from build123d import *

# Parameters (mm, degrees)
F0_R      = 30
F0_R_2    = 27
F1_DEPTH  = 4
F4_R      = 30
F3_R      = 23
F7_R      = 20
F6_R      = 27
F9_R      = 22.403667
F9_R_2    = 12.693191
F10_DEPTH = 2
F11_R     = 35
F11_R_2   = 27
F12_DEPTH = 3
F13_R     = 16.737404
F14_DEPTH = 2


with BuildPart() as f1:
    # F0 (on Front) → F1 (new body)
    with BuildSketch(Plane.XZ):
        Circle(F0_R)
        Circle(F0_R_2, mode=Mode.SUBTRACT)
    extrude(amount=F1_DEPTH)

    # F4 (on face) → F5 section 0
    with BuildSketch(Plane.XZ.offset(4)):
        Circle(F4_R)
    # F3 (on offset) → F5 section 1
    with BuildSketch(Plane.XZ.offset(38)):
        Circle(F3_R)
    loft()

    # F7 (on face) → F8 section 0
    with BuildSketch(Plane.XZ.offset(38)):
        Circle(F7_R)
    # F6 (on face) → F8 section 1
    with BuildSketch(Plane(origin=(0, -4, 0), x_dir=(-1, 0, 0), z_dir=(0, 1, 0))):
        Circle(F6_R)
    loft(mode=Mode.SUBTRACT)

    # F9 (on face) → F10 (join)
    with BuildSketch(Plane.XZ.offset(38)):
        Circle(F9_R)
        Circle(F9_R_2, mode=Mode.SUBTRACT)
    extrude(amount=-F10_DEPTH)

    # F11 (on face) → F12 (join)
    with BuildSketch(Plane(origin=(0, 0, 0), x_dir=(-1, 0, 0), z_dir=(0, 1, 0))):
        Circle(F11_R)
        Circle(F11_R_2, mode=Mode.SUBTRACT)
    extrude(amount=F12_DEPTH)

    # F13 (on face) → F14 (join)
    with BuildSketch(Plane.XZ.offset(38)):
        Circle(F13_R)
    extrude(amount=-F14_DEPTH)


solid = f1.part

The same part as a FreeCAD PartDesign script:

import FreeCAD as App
import Part
import Sketcher
from FreeCAD import Vector
Q = App.Units.Quantity

doc = App.newDocument("Part")
body = doc.addObject("PartDesign::Body", "Body")

# Sketch on XZ plane
sketch1 = body.newObject("Sketcher::SketchObject", "Sketch")
sketch1.AttachmentSupport = (doc.getObject("XZ_Plane"), [""])
sketch1.MapMode = "FlatFace"
sketch1.addGeometry([
    Part.Circle(Vector(0, 0, 0), Vector(0, 0, 1), 30),
    Part.Circle(Vector(0, 0, 0), Vector(0, 0, 1), 27),
], False)
sketch1.addConstraint([
    Sketcher.Constraint("Coincident", 0, 3, -1, 1),
    Sketcher.Constraint("Coincident", 1, 3, -1, 1),
    Sketcher.Constraint("Diameter", 0, Q("60 mm")),
    Sketcher.Constraint("Diameter", 1, Q("54 mm")),
])
pad1 = body.newObject("PartDesign::Pad", "Pad")
pad1.Profile = sketch1
pad1.Length = 4

# Sketch on XZ plane
sketch2 = body.newObject("Sketcher::SketchObject", "Sketch001")
sketch2.AttachmentSupport = (doc.getObject("XZ_Plane"), [""])
sketch2.MapMode = "FlatFace"
sketch2.AttachmentOffset = App.Placement(Vector(0, 0, 4), App.Rotation())
sketch2.addGeometry(Part.Circle(Vector(0, 0, 0), Vector(0, 0, 1), 30), False)
sketch2.addConstraint([
    Sketcher.Constraint("Coincident", 0, 3, -1, 1),
    Sketcher.Constraint("Diameter", 0, Q("60 mm")),
])

# Sketch on XZ plane
sketch3 = body.newObject("Sketcher::SketchObject", "Sketch002")
sketch3.AttachmentSupport = (doc.getObject("XZ_Plane"), [""])
sketch3.MapMode = "FlatFace"
sketch3.AttachmentOffset = App.Placement(Vector(0, 0, 38), App.Rotation())
sketch3.addGeometry(Part.Circle(Vector(0, 0, 0), Vector(0, 0, 1), 23), False)
sketch3.addConstraint([
    Sketcher.Constraint("Coincident", 0, 3, -1, 1),
    Sketcher.Constraint("Diameter", 0, Q("46 mm")),
])

additiveloft = body.newObject("PartDesign::AdditiveLoft", "AdditiveLoft")
additiveloft.Profile = sketch2
additiveloft.Sections = [sketch3]

# Sketch on XZ plane
sketch4 = body.newObject("Sketcher::SketchObject", "Sketch003")
sketch4.AttachmentSupport = (doc.getObject("XZ_Plane"), [""])
sketch4.MapMode = "FlatFace"
sketch4.AttachmentOffset = App.Placement(Vector(0, 0, 38), App.Rotation())
sketch4.addGeometry(Part.Circle(Vector(0, 0, 0), Vector(0, 0, 1), 20), False)
sketch4.addConstraint([
    Sketcher.Constraint("Coincident", 0, 3, -1, 1),
    Sketcher.Constraint("Diameter", 0, Q("40 mm")),
])

# Sketch on XZ plane
sketch5 = body.newObject("Sketcher::SketchObject", "Sketch004")
sketch5.AttachmentSupport = (doc.getObject("XZ_Plane"), [""])
sketch5.MapMode = "FlatFace"
sketch5.AttachmentOffset = App.Placement(Vector(0, 0, 4), App.Rotation())
sketch5.addGeometry(Part.Circle(Vector(0, 0, 0), Vector(0, 0, 1), 27), False)
sketch5.addConstraint([
    Sketcher.Constraint("Coincident", 0, 3, -1, 1),
    Sketcher.Constraint("Diameter", 0, Q("54 mm")),
])

subtractiveloft = body.newObject("PartDesign::SubtractiveLoft", "SubtractiveLoft")
subtractiveloft.Profile = sketch4
subtractiveloft.Sections = [sketch5]

# Sketch on XZ plane
sketch6 = body.newObject("Sketcher::SketchObject", "Sketch005")
sketch6.AttachmentSupport = (doc.getObject("XZ_Plane"), [""])
sketch6.MapMode = "FlatFace"
sketch6.AttachmentOffset = App.Placement(Vector(0, 0, 38), App.Rotation())
sketch6.addGeometry([
    Part.Circle(Vector(0, 0, 0), Vector(0, 0, 1), 22),
    Part.Circle(Vector(0, 0, 0), Vector(0, 0, 1), 13),
], False)
sketch6.addConstraint([
    Sketcher.Constraint("Coincident", 0, 3, -1, 1),
    Sketcher.Constraint("Coincident", 1, 3, -1, 1),
    Sketcher.Constraint("Diameter", 0, Q("44.807334 mm")),
    Sketcher.Constraint("Diameter", 1, Q("25.386382 mm")),
])
pad2 = body.newObject("PartDesign::Pad", "Pad001")
pad2.Profile = sketch6
pad2.Length = 2
pad2.Reversed = True

# Sketch on XZ plane
sketch7 = body.newObject("Sketcher::SketchObject", "Sketch006")
sketch7.AttachmentSupport = (doc.getObject("XZ_Plane"), [""])
sketch7.MapMode = "FlatFace"
sketch7.addGeometry([
    Part.Circle(Vector(0, 0, 0), Vector(0, 0, 1), 35),
    Part.Circle(Vector(0, 0, 0), Vector(0, 0, 1), 27),
], False)
sketch7.addConstraint([
    Sketcher.Constraint("Coincident", 0, 3, -1, 1),
    Sketcher.Constraint("Coincident", 1, 3, -1, 1),
    Sketcher.Constraint("Diameter", 0, Q("70 mm")),
    Sketcher.Constraint("Diameter", 1, Q("54 mm")),
])
pad3 = body.newObject("PartDesign::Pad", "Pad002")
pad3.Profile = sketch7
pad3.Length = 3
pad3.Reversed = True

# Sketch on XZ plane
sketch8 = body.newObject("Sketcher::SketchObject", "Sketch007")
sketch8.AttachmentSupport = (doc.getObject("XZ_Plane"), [""])
sketch8.MapMode = "FlatFace"
sketch8.AttachmentOffset = App.Placement(Vector(0, 0, 38), App.Rotation())
sketch8.addGeometry(Part.Circle(Vector(0, 0, 0), Vector(0, 0, 1), 17), False)
sketch8.addConstraint([
    Sketcher.Constraint("Coincident", 0, 3, -1, 1),
    Sketcher.Constraint("Diameter", 0, Q("33.474808 mm")),
])
pad4 = body.newObject("PartDesign::Pad", "Pad003")
pad4.Profile = sketch8
pad4.Length = 2
pad4.Reversed = True

doc.recompute()
